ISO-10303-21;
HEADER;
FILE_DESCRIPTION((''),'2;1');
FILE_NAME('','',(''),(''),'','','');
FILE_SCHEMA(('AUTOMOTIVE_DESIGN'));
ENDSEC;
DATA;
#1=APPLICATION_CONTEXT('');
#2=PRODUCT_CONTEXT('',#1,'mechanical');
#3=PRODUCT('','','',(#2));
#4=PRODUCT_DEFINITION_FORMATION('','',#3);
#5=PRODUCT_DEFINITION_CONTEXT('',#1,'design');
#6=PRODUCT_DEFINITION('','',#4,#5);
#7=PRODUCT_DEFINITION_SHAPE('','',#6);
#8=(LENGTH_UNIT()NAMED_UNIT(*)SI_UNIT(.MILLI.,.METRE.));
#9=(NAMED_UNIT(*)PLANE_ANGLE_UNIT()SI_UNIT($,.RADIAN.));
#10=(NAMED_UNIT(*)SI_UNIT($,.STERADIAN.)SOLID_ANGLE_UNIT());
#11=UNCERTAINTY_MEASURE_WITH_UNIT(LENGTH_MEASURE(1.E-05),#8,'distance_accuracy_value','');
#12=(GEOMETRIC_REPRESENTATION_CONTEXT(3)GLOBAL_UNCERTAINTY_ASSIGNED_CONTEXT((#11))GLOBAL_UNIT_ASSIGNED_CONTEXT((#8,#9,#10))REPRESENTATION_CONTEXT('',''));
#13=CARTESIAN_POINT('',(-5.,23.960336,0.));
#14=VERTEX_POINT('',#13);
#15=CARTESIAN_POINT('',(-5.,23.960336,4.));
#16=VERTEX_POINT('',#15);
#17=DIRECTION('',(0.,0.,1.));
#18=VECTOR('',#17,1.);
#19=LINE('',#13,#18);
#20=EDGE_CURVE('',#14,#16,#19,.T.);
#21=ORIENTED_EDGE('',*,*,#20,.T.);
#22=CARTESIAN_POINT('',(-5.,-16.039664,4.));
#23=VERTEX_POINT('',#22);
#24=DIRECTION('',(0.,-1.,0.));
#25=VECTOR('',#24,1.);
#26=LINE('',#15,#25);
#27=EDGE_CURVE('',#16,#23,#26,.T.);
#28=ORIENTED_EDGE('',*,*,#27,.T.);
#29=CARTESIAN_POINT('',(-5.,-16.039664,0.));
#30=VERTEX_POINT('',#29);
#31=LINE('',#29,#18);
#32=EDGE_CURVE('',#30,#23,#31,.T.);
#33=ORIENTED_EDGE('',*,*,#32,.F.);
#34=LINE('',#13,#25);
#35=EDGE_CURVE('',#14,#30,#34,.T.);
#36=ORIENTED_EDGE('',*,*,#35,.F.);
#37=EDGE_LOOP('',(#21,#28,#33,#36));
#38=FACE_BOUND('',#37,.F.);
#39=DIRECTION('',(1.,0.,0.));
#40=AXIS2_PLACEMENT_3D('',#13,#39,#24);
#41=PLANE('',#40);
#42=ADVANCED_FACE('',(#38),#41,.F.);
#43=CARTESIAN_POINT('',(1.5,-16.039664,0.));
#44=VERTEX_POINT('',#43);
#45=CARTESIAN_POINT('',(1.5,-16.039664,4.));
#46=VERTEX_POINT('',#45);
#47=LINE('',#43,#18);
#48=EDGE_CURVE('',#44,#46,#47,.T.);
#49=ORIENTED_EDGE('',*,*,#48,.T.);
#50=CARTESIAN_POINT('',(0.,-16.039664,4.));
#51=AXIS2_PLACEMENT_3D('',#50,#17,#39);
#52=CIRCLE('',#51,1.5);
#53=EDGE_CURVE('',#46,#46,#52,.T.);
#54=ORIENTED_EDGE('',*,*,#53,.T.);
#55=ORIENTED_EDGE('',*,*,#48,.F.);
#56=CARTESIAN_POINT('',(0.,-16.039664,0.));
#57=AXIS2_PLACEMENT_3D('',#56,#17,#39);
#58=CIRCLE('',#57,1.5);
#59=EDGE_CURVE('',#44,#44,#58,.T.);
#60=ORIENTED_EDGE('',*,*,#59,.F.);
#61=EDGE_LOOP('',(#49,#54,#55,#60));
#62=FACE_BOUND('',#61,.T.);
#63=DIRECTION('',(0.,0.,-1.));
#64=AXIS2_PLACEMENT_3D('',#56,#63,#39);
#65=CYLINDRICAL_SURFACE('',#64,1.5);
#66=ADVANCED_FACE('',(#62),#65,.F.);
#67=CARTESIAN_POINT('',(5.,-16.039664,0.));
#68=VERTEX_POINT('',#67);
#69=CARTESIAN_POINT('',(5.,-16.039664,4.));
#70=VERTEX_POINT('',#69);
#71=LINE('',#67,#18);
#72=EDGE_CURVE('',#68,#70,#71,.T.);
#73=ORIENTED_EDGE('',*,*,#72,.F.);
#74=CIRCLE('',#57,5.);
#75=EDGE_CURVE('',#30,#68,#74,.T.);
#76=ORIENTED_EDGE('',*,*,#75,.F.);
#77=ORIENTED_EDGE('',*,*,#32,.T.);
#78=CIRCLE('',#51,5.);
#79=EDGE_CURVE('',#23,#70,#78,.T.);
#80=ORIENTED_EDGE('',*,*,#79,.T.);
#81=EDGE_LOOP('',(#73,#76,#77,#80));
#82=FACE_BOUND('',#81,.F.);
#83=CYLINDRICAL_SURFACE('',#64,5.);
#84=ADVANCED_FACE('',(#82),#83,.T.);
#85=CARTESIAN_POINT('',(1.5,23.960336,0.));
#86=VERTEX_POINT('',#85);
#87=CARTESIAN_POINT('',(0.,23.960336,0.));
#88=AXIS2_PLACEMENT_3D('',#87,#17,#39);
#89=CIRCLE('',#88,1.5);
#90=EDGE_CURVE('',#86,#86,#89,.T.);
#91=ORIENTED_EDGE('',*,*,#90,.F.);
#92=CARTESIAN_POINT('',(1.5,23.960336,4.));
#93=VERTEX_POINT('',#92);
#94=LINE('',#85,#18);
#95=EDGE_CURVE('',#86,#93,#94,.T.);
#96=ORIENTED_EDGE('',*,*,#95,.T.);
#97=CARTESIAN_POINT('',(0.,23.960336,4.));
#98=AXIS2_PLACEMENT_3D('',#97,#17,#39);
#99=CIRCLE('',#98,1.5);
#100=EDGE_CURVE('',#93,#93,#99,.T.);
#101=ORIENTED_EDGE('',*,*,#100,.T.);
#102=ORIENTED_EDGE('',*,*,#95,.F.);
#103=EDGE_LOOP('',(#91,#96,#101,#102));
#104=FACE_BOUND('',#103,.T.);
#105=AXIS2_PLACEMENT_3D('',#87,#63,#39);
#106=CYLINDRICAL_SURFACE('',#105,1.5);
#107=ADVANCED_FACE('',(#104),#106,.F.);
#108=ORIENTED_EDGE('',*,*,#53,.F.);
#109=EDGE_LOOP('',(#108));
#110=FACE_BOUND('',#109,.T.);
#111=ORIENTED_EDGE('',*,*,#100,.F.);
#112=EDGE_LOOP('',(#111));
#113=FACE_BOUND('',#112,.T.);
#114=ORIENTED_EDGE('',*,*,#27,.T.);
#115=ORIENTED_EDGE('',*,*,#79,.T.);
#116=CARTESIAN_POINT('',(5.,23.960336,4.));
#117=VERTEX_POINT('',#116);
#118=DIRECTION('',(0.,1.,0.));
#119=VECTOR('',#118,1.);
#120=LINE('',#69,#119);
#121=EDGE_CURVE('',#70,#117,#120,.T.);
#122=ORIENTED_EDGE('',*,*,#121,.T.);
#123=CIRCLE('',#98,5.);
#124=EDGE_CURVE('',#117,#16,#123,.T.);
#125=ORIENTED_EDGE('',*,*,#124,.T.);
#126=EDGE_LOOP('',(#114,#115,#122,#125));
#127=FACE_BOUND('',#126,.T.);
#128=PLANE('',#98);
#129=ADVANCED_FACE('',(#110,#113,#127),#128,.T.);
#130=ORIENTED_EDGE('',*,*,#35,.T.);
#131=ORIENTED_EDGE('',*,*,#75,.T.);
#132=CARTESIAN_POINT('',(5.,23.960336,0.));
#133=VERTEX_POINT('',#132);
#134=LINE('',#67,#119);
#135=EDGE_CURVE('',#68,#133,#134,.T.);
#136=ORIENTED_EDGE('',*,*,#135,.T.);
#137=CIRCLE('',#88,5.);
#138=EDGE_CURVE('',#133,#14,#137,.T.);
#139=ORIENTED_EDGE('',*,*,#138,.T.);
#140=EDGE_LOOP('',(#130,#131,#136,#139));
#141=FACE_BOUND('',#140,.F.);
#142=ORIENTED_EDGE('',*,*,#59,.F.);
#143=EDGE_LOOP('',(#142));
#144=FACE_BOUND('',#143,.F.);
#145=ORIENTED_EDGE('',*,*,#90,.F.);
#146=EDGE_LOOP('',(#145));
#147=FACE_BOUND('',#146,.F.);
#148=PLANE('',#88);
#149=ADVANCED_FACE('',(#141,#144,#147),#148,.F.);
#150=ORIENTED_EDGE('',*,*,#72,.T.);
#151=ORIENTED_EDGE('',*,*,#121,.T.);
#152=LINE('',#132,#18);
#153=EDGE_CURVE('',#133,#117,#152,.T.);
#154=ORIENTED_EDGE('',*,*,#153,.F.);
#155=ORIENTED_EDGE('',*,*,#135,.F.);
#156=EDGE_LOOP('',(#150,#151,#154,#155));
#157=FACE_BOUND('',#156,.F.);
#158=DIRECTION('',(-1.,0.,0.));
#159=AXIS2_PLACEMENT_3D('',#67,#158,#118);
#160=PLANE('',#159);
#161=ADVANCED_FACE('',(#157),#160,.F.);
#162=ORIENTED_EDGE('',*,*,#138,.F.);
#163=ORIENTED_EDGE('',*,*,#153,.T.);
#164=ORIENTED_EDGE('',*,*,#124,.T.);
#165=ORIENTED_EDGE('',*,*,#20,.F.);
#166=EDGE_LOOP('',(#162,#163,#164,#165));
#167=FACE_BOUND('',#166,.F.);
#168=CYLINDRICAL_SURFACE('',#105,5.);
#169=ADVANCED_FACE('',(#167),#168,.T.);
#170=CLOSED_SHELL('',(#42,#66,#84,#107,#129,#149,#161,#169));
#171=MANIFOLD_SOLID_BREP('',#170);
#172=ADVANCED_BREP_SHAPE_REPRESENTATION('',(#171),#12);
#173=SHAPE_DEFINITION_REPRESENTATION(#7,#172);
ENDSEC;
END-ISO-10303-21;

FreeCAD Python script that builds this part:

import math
import FreeCAD as App
import Part
import Sketcher

doc = App.newDocument("Part")
params = doc.addObject("Spreadsheet::Sheet", "Params")
for row, (alias, value) in enumerate([
    ("sketch1_diameter", "3 mm"),
    ("sketch1_radius", "5 mm"),
    ("sketch1_height", "40 mm"),
    ("pad1_length", "4 mm"),
], start=1):
    params.set(f"A{row}", alias)
    params.set(f"B{row}", "=" + value)
    params.setAlias(f"B{row}", alias)

body = doc.addObject("PartDesign::Body", "Body")

sketch1 = body.newObject("Sketcher::SketchObject", "Sketch")
sketch1.AttachmentSupport = (doc.getObject("XY_Plane"), [""])
sketch1.MapMode = "FlatFace"
sketch1.addGeometry(Part.ArcOfCircle(Part.Circle(App.Vector(0, 24, 0), App.Vector(0, 0, 1), 5), math.radians(0), math.radians(180)), False)
sketch1.addGeometry(Part.LineSegment(App.Vector(-5, 24, 0), App.Vector(-5, -16, 0)), False)
sketch1.addGeometry(Part.ArcOfCircle(Part.Circle(App.Vector(0, -16, 0), App.Vector(0, 0, 1), 5), math.radians(180), math.radians(360)), False)
sketch1.addGeometry(Part.LineSegment(App.Vector(5, -16, 0), App.Vector(5, 24, 0)), False)
sketch1.addGeometry(Part.Circle(App.Vector(0, -16, 0), App.Vector(0, 0, 1), 1.5), False)
sketch1.addGeometry(Part.Circle(App.Vector(0, 24, 0), App.Vector(0, 0, 1), 1.5), False)
sketch1.addConstraint(Sketcher.Constraint("Tangent", 0, 2, 1, 1))
sketch1.addConstraint(Sketcher.Constraint("Tangent", 1, 2, 2, 1))
sketch1.addConstraint(Sketcher.Constraint("Tangent", 2, 2, 3, 1))
sketch1.addConstraint(Sketcher.Constraint("Tangent", 3, 2, 0, 1))
sketch1.addConstraint(Sketcher.Constraint("Vertical", 1))
sketch1.addConstraint(Sketcher.Constraint("Vertical", 3))
sketch1.addConstraint(Sketcher.Constraint("Coincident", 4, 3, 2, 3))
sketch1.addConstraint(Sketcher.Constraint("Coincident", 5, 3, 0, 3))
sketch1.addConstraint(Sketcher.Constraint("Equal", 4, 5))
sketch1.addConstraint(Sketcher.Constraint("PointOnObject", 0, 3, -2))
sketch1.addConstraint(Sketcher.Constraint("Diameter", 4, 3.0))
sketch1.addConstraint(Sketcher.Constraint("Radius", 0, 5.0))
sketch1.addConstraint(Sketcher.Constraint("DistanceY", 1, 2, 1, 1, 40.0))
sketch1.addConstraint(Sketcher.Constraint("DistanceY", -1, 1, 0, 3, 23.960336))
sketch1.setExpression("Constraints[10]", "Params.sketch1_diameter")
sketch1.setExpression("Constraints[11]", "Params.sketch1_radius")
sketch1.setExpression("Constraints[12]", "Params.sketch1_height")
pad1 = body.newObject("PartDesign::Pad", "Pad")
pad1.Profile = sketch1
pad1.setExpression("Length", "Params.pad1_length")

doc.recompute()
